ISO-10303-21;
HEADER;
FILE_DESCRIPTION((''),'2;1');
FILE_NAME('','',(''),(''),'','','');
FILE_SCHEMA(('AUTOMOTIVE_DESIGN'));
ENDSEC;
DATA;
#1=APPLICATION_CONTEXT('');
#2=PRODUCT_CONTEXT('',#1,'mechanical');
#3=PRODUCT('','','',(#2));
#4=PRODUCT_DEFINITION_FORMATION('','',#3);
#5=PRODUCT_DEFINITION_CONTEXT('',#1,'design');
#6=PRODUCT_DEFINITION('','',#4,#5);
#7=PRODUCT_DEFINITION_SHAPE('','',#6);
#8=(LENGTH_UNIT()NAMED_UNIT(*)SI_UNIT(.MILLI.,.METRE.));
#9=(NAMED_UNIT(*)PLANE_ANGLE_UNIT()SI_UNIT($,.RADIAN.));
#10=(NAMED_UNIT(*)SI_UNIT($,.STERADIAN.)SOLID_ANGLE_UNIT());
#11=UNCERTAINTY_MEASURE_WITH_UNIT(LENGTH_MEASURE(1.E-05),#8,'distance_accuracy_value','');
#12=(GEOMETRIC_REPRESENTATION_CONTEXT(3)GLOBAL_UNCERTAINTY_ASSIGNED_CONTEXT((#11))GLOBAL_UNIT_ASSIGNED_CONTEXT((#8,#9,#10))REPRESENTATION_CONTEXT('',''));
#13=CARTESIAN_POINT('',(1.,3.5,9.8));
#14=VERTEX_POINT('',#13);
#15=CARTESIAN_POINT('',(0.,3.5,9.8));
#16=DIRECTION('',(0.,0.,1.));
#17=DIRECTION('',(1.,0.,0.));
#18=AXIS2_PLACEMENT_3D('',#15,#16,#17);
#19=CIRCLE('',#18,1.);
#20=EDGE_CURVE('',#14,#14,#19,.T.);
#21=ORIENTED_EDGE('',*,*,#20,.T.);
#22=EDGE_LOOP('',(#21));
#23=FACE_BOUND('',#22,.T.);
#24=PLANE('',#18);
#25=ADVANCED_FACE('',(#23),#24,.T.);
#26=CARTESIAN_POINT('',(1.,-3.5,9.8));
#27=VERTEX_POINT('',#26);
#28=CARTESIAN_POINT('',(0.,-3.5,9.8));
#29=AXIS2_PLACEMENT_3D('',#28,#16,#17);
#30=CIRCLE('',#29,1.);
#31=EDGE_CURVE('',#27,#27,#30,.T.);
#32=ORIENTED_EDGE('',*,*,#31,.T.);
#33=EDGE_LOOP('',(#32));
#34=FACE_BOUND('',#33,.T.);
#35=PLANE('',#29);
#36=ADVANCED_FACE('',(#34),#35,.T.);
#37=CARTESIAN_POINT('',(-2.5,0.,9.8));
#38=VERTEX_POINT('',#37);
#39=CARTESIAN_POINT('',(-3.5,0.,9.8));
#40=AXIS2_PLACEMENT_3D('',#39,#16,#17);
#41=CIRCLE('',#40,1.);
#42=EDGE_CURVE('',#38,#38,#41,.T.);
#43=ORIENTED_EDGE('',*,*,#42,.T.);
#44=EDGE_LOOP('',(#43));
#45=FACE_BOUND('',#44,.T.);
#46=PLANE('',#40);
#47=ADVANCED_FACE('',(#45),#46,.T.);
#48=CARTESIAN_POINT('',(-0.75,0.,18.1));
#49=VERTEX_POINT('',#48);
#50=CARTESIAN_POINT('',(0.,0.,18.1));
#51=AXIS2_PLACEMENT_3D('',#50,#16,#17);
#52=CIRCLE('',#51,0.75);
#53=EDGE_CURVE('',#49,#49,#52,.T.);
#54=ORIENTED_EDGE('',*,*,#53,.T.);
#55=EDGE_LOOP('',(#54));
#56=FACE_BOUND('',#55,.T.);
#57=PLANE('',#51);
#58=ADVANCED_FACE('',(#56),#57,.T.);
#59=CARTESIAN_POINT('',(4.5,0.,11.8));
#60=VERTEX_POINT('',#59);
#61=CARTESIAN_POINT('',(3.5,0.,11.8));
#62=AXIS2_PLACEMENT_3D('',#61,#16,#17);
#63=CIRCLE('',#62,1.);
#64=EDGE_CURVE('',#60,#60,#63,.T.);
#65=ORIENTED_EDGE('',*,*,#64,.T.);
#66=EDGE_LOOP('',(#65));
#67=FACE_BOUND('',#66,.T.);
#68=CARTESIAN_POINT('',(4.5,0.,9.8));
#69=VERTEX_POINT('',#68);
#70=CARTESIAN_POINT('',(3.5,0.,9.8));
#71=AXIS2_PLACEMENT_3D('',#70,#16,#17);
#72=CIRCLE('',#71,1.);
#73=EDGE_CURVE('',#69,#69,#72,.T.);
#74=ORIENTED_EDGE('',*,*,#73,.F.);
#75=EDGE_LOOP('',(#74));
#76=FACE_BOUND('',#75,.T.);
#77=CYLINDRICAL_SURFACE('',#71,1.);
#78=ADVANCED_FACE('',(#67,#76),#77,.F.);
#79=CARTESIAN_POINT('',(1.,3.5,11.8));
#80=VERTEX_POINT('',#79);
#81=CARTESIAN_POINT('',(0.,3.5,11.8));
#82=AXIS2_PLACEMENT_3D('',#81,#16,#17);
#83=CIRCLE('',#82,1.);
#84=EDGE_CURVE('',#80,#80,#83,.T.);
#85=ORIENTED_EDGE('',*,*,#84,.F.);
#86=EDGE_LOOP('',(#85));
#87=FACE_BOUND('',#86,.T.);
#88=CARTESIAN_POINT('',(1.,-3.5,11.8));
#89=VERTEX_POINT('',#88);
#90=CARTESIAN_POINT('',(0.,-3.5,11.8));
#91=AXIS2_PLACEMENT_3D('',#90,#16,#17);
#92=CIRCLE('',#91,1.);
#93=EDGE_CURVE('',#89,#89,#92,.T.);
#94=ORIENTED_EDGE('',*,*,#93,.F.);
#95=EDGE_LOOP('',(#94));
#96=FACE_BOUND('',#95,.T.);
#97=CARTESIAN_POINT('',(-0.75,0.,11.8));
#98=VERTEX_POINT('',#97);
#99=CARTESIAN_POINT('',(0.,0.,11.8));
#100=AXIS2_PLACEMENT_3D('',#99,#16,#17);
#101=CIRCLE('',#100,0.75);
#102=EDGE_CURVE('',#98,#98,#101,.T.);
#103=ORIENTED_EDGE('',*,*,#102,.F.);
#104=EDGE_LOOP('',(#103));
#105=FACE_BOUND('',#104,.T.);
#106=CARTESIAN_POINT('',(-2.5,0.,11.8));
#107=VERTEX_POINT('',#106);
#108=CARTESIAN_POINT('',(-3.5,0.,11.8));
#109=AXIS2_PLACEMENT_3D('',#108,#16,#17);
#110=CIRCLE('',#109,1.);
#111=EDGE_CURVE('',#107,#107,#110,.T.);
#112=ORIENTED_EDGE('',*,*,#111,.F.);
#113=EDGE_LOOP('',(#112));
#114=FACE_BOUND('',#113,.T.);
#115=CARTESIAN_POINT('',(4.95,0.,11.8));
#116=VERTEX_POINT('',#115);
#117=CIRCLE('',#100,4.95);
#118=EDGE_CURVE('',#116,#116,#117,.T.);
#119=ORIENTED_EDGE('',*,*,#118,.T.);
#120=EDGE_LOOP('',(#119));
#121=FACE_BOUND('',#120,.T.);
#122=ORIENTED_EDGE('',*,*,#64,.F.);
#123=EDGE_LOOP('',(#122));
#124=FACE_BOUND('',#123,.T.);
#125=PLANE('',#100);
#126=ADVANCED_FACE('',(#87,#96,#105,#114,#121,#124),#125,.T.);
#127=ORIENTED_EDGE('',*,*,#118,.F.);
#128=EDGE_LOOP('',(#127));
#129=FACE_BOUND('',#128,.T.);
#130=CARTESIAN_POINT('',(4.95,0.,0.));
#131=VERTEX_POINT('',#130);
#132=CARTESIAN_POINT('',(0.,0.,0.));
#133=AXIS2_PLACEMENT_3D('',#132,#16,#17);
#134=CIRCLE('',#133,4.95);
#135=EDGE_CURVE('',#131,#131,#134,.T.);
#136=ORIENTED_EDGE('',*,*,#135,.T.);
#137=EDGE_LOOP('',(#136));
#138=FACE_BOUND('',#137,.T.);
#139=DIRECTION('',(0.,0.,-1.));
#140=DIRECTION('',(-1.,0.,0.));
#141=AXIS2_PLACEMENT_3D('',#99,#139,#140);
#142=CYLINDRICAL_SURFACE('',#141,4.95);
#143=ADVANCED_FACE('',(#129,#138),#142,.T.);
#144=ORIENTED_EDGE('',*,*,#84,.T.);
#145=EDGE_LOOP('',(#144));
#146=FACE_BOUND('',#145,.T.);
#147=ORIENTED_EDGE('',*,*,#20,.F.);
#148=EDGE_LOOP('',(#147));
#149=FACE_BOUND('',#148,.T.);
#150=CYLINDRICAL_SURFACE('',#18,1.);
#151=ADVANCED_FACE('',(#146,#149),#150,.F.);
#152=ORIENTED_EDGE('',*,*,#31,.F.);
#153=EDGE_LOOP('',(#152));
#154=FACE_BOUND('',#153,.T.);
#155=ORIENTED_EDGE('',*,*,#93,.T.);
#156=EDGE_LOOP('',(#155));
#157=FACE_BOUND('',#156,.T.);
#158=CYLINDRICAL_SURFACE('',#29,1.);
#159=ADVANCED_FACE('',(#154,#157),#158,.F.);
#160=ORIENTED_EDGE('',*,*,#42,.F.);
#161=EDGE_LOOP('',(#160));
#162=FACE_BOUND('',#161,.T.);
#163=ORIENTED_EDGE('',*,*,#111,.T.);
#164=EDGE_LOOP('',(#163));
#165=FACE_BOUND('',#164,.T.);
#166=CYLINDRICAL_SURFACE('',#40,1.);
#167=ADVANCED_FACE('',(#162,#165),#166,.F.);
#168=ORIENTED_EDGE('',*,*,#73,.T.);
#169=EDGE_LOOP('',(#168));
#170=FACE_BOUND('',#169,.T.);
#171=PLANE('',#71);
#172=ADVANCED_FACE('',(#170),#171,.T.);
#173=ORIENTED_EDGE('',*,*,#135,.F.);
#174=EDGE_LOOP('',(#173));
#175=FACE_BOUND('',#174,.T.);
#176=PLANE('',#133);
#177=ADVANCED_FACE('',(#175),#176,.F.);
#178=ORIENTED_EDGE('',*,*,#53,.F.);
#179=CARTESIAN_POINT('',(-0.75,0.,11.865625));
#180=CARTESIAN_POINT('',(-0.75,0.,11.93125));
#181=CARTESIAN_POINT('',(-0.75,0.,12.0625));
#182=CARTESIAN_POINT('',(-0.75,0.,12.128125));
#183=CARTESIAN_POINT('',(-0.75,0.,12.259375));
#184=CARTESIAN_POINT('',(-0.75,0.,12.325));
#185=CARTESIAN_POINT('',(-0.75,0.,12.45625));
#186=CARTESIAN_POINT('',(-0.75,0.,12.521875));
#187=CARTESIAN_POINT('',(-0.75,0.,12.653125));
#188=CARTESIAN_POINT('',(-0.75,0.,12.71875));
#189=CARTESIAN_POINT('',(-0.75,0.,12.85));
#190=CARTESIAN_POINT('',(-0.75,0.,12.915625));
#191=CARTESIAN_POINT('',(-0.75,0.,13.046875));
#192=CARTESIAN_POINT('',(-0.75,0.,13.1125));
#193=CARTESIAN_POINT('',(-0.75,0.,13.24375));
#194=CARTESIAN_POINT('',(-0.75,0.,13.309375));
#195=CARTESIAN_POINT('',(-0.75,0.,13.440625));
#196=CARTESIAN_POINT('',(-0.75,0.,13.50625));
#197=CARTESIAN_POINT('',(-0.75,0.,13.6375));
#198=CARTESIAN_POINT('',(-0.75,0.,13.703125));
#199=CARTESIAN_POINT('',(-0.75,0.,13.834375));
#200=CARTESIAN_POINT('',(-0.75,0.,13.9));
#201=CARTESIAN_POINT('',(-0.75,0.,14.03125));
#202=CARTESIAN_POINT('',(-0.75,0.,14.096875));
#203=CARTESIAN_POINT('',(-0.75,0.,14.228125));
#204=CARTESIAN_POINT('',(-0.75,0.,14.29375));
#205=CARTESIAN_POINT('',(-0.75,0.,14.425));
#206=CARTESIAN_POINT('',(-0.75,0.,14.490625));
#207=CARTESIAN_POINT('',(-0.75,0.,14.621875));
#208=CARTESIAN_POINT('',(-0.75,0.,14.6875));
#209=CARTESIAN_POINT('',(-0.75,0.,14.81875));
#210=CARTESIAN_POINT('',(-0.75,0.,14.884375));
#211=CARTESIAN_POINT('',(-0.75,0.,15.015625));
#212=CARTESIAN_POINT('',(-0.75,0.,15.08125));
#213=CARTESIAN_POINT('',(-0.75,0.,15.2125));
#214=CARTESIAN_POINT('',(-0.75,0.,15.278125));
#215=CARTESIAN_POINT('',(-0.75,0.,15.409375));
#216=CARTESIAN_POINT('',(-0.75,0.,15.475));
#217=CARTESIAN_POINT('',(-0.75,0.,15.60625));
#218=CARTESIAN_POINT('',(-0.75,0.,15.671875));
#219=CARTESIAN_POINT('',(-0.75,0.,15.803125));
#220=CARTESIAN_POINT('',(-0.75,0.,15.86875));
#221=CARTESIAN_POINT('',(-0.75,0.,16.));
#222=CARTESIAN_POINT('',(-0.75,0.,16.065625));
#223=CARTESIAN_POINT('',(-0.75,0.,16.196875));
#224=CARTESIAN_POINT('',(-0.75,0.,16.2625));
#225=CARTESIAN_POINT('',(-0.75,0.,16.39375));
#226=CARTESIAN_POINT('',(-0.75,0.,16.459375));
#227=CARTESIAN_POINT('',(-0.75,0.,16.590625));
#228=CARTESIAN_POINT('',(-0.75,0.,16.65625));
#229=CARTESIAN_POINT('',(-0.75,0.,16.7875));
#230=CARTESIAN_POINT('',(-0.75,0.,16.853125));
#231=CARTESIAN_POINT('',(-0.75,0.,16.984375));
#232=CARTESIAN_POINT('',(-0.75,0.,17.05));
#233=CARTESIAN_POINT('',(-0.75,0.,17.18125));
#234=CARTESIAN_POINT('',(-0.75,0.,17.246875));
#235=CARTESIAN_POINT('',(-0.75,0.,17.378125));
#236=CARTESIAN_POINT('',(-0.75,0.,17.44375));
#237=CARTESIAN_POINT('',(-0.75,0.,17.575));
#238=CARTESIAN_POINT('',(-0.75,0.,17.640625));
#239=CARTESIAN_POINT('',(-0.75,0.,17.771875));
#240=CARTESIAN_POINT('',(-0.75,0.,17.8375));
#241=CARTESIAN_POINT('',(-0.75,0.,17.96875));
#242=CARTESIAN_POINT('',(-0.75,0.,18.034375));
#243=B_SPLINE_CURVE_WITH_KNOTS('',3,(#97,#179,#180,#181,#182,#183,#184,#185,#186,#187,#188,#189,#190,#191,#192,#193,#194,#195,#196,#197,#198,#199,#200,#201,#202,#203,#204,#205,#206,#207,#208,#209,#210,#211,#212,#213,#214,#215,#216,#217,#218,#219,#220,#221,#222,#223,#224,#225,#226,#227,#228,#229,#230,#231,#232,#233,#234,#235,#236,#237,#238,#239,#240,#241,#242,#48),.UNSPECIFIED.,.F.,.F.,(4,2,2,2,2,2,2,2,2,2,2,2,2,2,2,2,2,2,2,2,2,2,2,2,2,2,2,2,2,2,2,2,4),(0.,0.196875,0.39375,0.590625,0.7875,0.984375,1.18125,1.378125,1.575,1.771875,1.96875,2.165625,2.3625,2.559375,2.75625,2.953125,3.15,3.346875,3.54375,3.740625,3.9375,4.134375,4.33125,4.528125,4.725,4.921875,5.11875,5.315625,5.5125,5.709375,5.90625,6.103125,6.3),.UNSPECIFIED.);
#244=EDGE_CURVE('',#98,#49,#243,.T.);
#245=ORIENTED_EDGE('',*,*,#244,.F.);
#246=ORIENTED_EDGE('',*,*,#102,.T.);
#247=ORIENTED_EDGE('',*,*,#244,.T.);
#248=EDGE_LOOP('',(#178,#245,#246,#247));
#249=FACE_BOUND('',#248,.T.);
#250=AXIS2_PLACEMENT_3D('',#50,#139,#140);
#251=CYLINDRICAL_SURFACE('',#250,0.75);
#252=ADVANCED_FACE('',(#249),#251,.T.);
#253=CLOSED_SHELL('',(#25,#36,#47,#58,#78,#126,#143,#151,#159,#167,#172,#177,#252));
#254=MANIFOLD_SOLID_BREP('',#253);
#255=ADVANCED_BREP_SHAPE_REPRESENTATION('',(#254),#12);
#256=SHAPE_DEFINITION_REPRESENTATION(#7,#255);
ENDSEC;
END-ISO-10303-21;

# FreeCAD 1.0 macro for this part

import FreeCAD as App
import Part
import Sketcher
from FreeCAD import Vector

doc = App.newDocument("Part")
body = doc.addObject("PartDesign::Body", "Body")

sketch1 = body.newObject("Sketcher::SketchObject", "Sketch")
sketch1.AttachmentSupport = (doc.getObject("XY_Plane"), [""])
sketch1.MapMode = "FlatFace"
sketch1.addGeometry([
    Part.Circle(Vector(0, 0, 0), Vector(0, 0, 1), 5),
    Part.Circle(Vector(0, 0, 0), Vector(0, 0, 1), 0.8),
], False)
sketch1.addConstraint([
    Sketcher.Constraint("Coincident", 0, 3, -1, 1),
    Sketcher.Constraint("Coincident", 1, 3, -1, 1),
    Sketcher.Constraint("Diameter", 0, 9.9),
    Sketcher.Constraint("Diameter", 1, 1.5),
])
pad1 = body.newObject("PartDesign::Pad", "Pad")
pad1.Profile = sketch1
pad1.Length = 11.8

sketch2 = body.newObject("Sketcher::SketchObject", "Sketch001")
sketch2.AttachmentSupport = (doc.getObject("XY_Plane"), [""])
sketch2.MapMode = "FlatFace"
sketch2.addGeometry(Part.Circle(Vector(0, 0, 0), Vector(0, 0, 1), 0.8), False)
sketch2.addConstraint([
    Sketcher.Constraint("Coincident", 0, 3, -1, 1),
    Sketcher.Constraint("Diameter", 0, 1.5),
])
pad2 = body.newObject("PartDesign::Pad", "Pad001")
pad2.Profile = sketch2
pad2.Length = 18.1

sketch3 = body.newObject("Sketcher::SketchObject", "Sketch002")
sketch3.AttachmentSupport = (doc.getObject("XY_Plane"), [""])
sketch3.MapMode = "FlatFace"
sketch3.AttachmentOffset = App.Placement(Vector(0, 0, 11.8), App.Rotation())
sketch3.addGeometry([
    Part.Circle(Vector(0, 3.5, 0), Vector(0, 0, 1), 1),
    Part.Circle(Vector(-3.5, 0, 0), Vector(0, 0, 1), 1),
    Part.Circle(Vector(3.5, 0, 0), Vector(0, 0, 1), 1),
    Part.Circle(Vector(0, -3.5, 0), Vector(0, 0, 1), 1),
], False)
sketch3.addConstraint([
    Sketcher.Constraint("Equal", 0, 1),
    Sketcher.Constraint("Equal", 1, 2),
    Sketcher.Constraint("Equal", 2, 3),
    Sketcher.Constraint("Symmetric", 1, 3, 2, 3, -1, 1),
    Sketcher.Constraint("Symmetric", 0, 3, 3, 3, -1, 1),
    Sketcher.Constraint("PointOnObject", 0, 3, -2),
    Sketcher.Constraint("PointOnObject", 1, 3, -1),
    Sketcher.Constraint("Diameter", 0, 2.0),
    Sketcher.Constraint("DistanceX", 1, 3, 2, 3, 7.0),
    Sketcher.Constraint("DistanceY", 3, 3, 0, 3, 7.0),
])
pocket1 = body.newObject("PartDesign::Pocket", "Pocket")
pocket1.Profile = sketch3
pocket1.Length = 2

doc.recompute()
